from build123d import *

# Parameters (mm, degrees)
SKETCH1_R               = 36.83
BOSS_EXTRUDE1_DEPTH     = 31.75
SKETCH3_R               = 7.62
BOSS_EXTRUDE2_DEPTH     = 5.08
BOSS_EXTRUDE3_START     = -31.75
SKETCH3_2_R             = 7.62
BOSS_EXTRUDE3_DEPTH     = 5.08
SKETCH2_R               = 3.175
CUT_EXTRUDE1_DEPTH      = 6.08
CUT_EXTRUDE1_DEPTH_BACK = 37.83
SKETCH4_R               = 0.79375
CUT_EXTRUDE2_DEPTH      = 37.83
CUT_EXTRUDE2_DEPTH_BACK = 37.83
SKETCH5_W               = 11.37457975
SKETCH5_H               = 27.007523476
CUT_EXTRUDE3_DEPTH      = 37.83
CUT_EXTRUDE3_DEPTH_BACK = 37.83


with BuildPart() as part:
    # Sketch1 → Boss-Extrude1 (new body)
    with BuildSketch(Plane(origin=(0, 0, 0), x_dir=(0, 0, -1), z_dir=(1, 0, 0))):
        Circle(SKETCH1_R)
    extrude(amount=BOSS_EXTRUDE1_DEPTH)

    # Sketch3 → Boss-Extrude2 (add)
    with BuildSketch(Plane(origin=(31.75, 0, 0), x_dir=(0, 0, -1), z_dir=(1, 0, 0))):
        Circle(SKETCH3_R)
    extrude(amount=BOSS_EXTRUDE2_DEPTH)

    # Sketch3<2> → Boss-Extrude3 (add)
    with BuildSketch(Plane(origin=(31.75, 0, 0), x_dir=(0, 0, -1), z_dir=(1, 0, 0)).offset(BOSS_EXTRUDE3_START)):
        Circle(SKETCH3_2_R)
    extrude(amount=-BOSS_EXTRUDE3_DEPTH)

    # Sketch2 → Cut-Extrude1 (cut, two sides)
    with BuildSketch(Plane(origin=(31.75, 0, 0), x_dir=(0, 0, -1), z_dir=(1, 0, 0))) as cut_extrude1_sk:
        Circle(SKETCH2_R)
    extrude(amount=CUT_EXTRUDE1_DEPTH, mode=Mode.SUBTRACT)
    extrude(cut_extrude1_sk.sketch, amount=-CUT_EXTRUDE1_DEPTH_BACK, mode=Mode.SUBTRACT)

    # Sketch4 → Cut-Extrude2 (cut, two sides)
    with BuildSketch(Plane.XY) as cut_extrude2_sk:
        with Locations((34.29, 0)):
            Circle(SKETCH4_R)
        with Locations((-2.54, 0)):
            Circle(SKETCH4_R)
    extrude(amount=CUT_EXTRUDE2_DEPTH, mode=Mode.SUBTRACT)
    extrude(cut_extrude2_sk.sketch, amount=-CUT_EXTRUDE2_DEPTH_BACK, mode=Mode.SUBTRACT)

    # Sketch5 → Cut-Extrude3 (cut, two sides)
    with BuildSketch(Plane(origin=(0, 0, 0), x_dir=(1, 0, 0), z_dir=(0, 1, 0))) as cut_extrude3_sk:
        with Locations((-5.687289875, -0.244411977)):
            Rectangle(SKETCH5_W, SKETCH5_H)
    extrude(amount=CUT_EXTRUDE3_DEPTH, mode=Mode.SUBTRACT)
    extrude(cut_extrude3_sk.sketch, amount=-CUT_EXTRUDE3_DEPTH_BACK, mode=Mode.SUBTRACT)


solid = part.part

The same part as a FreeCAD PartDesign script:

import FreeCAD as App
import Part
import Sketcher
Q = App.Units.Quantity


def add_polygon(sketch, points):
    """Adds a closed chain of lines whose ends are joined by coincident constraints."""
    first, n = sketch.GeometryCount, len(points)
    for a, b in zip(points, points[1:] + points[:1]):
        sketch.addGeometry(Part.LineSegment(App.Vector(*a, 0), App.Vector(*b, 0)), False)
    for i in range(n):
        sketch.addConstraint(Sketcher.Constraint("Coincident", first + i, 2, first + (i + 1) % n, 1))

doc = App.newDocument("Part")
params = doc.addObject("Spreadsheet::Sheet", "Params")
for row, (alias, value) in enumerate([
    ("sketch1_diameter", "2.9 in"),
    ("pad1_length", "1.25 in"),
    ("sketch2_diameter", "0.6 in"),
    ("pad2_length", "0.2 in"),
    ("sketch3_diameter", "0.6 in"),
    ("pad3_length", "0.2 in"),
    ("sketch4_diameter", "0.25 in"),
    ("sketch5_diameter", "0.0625 in"),
], start=1):
    params.set(f"A{row}", alias)
    params.set(f"B{row}", "=" + value)
    params.setAlias(f"B{row}", alias)

body = doc.addObject("PartDesign::Body", "Body")

sketch1 = body.newObject("Sketcher::SketchObject", "Sketch")
sketch1.AttachmentSupport = (doc.getObject("YZ_Plane"), [""])
sketch1.MapMode = "FlatFace"
sketch1.addGeometry(Part.Circle(App.Vector(0, 0, 0), App.Vector(0, 0, 1), 37), False)
sketch1.addConstraint([
    Sketcher.Constraint("Coincident", 0, 3, -1, 1),
    Sketcher.Constraint("Diameter", 0, Q("2.9 in")),
])
sketch1.setExpression("Constraints[1]", "Params.sketch1_diameter")
pad1 = body.newObject("PartDesign::Pad", "Pad")
pad1.Profile = sketch1
pad1.setExpression("Length", "Params.pad1_length")

sketch2 = body.newObject("Sketcher::SketchObject", "Sketch001")
sketch2.AttachmentSupport = (doc.getObject("YZ_Plane"), [""])
sketch2.MapMode = "FlatFace"
sketch2.AttachmentOffset = App.Placement(App.Vector(0, 0, 1.25 * 25.4), App.Rotation())
sketch2.addGeometry(Part.Circle(App.Vector(0, 0, 0), App.Vector(0, 0, 1), 8), False)
sketch2.addConstraint([
    Sketcher.Constraint("Coincident", 0, 3, -1, 1),
    Sketcher.Constraint("Diameter", 0, Q("0.6 in")),
])
sketch2.setExpression("Constraints[1]", "Params.sketch2_diameter")
pad2 = body.newObject("PartDesign::Pad", "Pad001")
pad2.Profile = sketch2
pad2.setExpression("Length", "Params.pad2_length")

sketch3 = body.newObject("Sketcher::SketchObject", "Sketch002")
sketch3.AttachmentSupport = (doc.getObject("YZ_Plane"), [""])
sketch3.MapMode = "FlatFace"
sketch3.addGeometry(Part.Circle(App.Vector(0, 0, 0), App.Vector(0, 0, 1), 8), False)
sketch3.addConstraint([
    Sketcher.Constraint("Coincident", 0, 3, -1, 1),
    Sketcher.Constraint("Diameter", 0, Q("0.6 in")),
])
sketch3.setExpression("Constraints[1]", "Params.sketch3_diameter")
pad3 = body.newObject("PartDesign::Pad", "Pad002")
pad3.Profile = sketch3
pad3.setExpression("Length", "Params.pad3_length")
pad3.Reversed = True

sketch4 = body.newObject("Sketcher::SketchObject", "Sketch003")
sketch4.AttachmentSupport = (doc.getObject("YZ_Plane"), [""])
sketch4.MapMode = "FlatFace"
sketch4.AttachmentOffset = App.Placement(App.Vector(0, 0, 1.25 * 25.4), App.Rotation())
sketch4.addGeometry(Part.Circle(App.Vector(0, 0, 0), App.Vector(0, 0, 1), 3.2), False)
sketch4.addConstraint([
    Sketcher.Constraint("Coincident", 0, 3, -1, 1),
    Sketcher.Constraint("Diameter", 0, Q("0.25 in")),
])
sketch4.setExpression("Constraints[1]", "Params.sketch4_diameter")
pocket1 = body.newObject("PartDesign::Pocket", "Pocket")
pocket1.Profile = sketch4
pocket1.Type = "ThroughAll"
pocket1.Midplane = True

sketch5 = body.newObject("Sketcher::SketchObject", "Sketch004")
sketch5.AttachmentSupport = (doc.getObject("XY_Plane"), [""])
sketch5.MapMode = "FlatFace"
sketch5.addGeometry([
    Part.Circle(App.Vector(34.3, 0, 0), App.Vector(0, 0, 1), 0.8),
    Part.Circle(App.Vector(-2.5, 0, 0), App.Vector(0, 0, 1), 0.8),
], False)
sketch5.addConstraint([
    Sketcher.Constraint("Equal", 0, 1),
    Sketcher.Constraint("PointOnObject", 0, 3, -1),
    Sketcher.Constraint("PointOnObject", 1, 3, -1),
    Sketcher.Constraint("Diameter", 0, Q("0.0625 in")),
    Sketcher.Constraint("DistanceX", 1, 3, -1, 1, Q("0.1 in")),
    Sketcher.Constraint("DistanceX", -1, 1, 0, 3, Q("1.35 in")),
])
sketch5.setExpression("Constraints[3]", "Params.sketch5_diameter")
pocket2 = body.newObject("PartDesign::Pocket", "Pocket001")
pocket2.Profile = sketch5
pocket2.Type = "ThroughAll"
pocket2.Midplane = True

sketch6 = body.newObject("Sketcher::SketchObject", "Sketch005")
sketch6.AttachmentSupport = (doc.getObject("XZ_Plane"), [""])
sketch6.MapMode = "FlatFace"
add_polygon(sketch6, [(-11, -13), (-11, 14), (0, 14), (0, -13)])
sketch6.addConstraint([
    Sketcher.Constraint("Vertical", 0),
    Sketcher.Constraint("Horizontal", 1),
    Sketcher.Constraint("Vertical", 2),
    Sketcher.Constraint("Horizontal", 3),
    Sketcher.Constraint("PointOnObject", 1, 2, -2),
    Sketcher.Constraint("DistanceX", 1, 1, 1, 2, 11.37458),
    Sketcher.Constraint("DistanceY", 0, 1, 0, 2, 27.007523),
    Sketcher.Constraint("DistanceY", 2, 2, -1, 1, 13.25935),
])
pocket3 = body.newObject("PartDesign::Pocket", "Pocket002")
pocket3.Profile = sketch6
pocket3.Type = "ThroughAll"
pocket3.Midplane = True

doc.recompute()
